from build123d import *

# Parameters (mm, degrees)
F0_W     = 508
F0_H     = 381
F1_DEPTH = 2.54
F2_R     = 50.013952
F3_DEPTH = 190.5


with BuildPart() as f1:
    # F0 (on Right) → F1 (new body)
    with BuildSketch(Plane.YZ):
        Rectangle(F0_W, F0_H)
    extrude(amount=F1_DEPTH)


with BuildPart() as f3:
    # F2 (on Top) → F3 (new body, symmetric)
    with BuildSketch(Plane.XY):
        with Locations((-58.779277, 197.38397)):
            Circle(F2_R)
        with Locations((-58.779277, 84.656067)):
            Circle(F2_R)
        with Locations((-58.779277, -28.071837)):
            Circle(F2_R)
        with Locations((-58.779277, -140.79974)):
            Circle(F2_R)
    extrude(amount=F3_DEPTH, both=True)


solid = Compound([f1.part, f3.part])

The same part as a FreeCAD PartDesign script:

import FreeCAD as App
import Part
import Sketcher
Q = App.Units.Quantity

doc = App.newDocument("Part")
body = doc.addObject("PartDesign::Body", "Body")

sketch1 = doc.addObject("Sketcher::SketchObject", "Sketch")
body.addObject(sketch1)
sketch1.AttachmentSupport = (doc.YZ_Plane, [""])
sketch1.MapMode = "FlatFace"
sketch1.addGeometry([
    Part.LineSegment(App.Vector(-254, 190.5, 0), App.Vector(-254, -190.5, 0)),
    Part.LineSegment(App.Vector(-254, -190.5, 0), App.Vector(254, -190.5, 0)),
    Part.LineSegment(App.Vector(254, -190.5, 0), App.Vector(254, 190.5, 0)),
    Part.LineSegment(App.Vector(254, 190.5, 0), App.Vector(-254, 190.5, 0)),
], False)
sketch1.addConstraint([
    Sketcher.Constraint("Coincident", 0, 2, 1, 1),
    Sketcher.Constraint("Coincident", 1, 2, 2, 1),
    Sketcher.Constraint("Coincident", 2, 2, 3, 1),
    Sketcher.Constraint("Coincident", 3, 2, 0, 1),
    Sketcher.Constraint("Vertical", 0),
    Sketcher.Constraint("Horizontal", 1),
    Sketcher.Constraint("Vertical", 2),
    Sketcher.Constraint("Horizontal", 3),
    Sketcher.Constraint("Symmetric", 0, 2, 2, 2, -1, 1),
    Sketcher.Constraint("DistanceX", 1, 1, 1, 2, Q("20 in")),
    Sketcher.Constraint("DistanceY", 0, 2, 0, 1, Q("15 in")),
])
pad1 = doc.addObject("PartDesign::Pad", "Pad")
body.addObject(pad1)
pad1.Profile = sketch1
pad1.Length = Q("0.1 in")
body2 = doc.addObject("PartDesign::Body", "Body001")
body2.AllowCompound = True

sketch2 = doc.addObject("Sketcher::SketchObject", "Sketch001")
body2.addObject(sketch2)
sketch2.AttachmentSupport = (doc.getObject("XY_Plane001"), [""])
sketch2.MapMode = "FlatFace"
sketch2.addGeometry([
    Part.Circle(App.Vector(-58.779277, 197.38397, 0), App.Vector(0, 0, 1), 50.013952),
    Part.Circle(App.Vector(-58.779277, 84.656067, 0), App.Vector(0, 0, 1), 50.013952),
    Part.Circle(App.Vector(-58.779277, -28.071837, 0), App.Vector(0, 0, 1), 50.013952),
    Part.Circle(App.Vector(-58.779277, -140.79974, 0), App.Vector(0, 0, 1), 50.013952),
], False)
sketch2.addConstraint([
    Sketcher.Constraint("Equal", 0, 1),
    Sketcher.Constraint("Equal", 1, 2),
    Sketcher.Constraint("Equal", 2, 3),
    Sketcher.Constraint("Vertical", 0, 3, 1, 3),
    Sketcher.Constraint("Vertical", 1, 3, 2, 3),
    Sketcher.Constraint("Vertical", 2, 3, 3, 3),
    Sketcher.Constraint("Diameter", 0, Q("100.027904 mm")),
    Sketcher.Constraint("DistanceY", -1, 1, 0, 3, Q("197.38397 mm")),
    Sketcher.Constraint("DistanceY", 3, 3, -1, 1, Q("140.79974 mm")),
    Sketcher.Constraint("DistanceX", 0, 3, -1, 1, Q("58.779277 mm")),
    Sketcher.Constraint("DistanceY", -1, 1, 1, 3, Q("84.656067 mm")),
    Sketcher.Constraint("DistanceY", 2, 3, -1, 1, Q("28.071837 mm")),
])
pad2 = doc.addObject("PartDesign::Pad", "Pad001")
body2.addObject(pad2)
pad2.Profile = sketch2
pad2.Length = Q("15 in")
pad2.Midplane = True

doc.recompute()
